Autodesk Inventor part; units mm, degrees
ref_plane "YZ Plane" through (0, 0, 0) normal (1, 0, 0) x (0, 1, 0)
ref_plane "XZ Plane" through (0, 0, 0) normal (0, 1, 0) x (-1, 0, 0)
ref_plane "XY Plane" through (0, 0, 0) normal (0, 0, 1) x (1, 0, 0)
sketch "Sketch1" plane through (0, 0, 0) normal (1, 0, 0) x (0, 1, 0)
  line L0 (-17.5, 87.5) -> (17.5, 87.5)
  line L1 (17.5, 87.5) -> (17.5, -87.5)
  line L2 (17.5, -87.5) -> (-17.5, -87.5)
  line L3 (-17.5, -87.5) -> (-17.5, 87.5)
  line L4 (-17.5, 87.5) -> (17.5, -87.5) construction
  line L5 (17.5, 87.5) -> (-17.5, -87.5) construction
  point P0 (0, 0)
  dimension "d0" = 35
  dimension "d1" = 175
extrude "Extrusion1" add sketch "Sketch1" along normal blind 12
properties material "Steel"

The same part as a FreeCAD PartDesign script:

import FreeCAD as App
import Part
import Sketcher
from FreeCAD import Vector
Q = App.Units.Quantity

doc = App.newDocument("Part")
body = doc.addObject("PartDesign::Body", "Body")

# Sketch on YZ plane
sketch1 = doc.addObject("Sketcher::SketchObject", "Sketch")
body.addObject(sketch1)
sketch1.AttachmentSupport = (doc.YZ_Plane, [""])
sketch1.MapMode = "FlatFace"
sketch1.addGeometry([
    Part.LineSegment(Vector(18, 88, 0), Vector(-18, 88, 0)),
    Part.LineSegment(Vector(-18, 88, 0), Vector(-18, -88, 0)),
    Part.LineSegment(Vector(-18, -88, 0), Vector(18, -88, 0)),
    Part.LineSegment(Vector(18, -88, 0), Vector(18, 88, 0)),
], False)
sketch1.addConstraint([
    Sketcher.Constraint("Coincident", 0, 2, 1, 1),
    Sketcher.Constraint("Coincident", 1, 2, 2, 1),
    Sketcher.Constraint("Coincident", 2, 2, 3, 1),
    Sketcher.Constraint("Coincident", 3, 2, 0, 1),
    Sketcher.Constraint("Horizontal", 0),
    Sketcher.Constraint("Vertical", 1),
    Sketcher.Constraint("Horizontal", 2),
    Sketcher.Constraint("Vertical", 3),
    Sketcher.Constraint("Symmetric", 0, 2, 2, 2, -1, 1),
    Sketcher.Constraint("DistanceX", 0, 2, 0, 1, Q("35 mm")),
    Sketcher.Constraint("DistanceY", 1, 2, 1, 1, Q("175 mm")),
])
pad1 = doc.addObject("PartDesign::Pad", "Pad")
body.addObject(pad1)
pad1.Profile = sketch1
pad1.Length = 12

doc.recompute()
